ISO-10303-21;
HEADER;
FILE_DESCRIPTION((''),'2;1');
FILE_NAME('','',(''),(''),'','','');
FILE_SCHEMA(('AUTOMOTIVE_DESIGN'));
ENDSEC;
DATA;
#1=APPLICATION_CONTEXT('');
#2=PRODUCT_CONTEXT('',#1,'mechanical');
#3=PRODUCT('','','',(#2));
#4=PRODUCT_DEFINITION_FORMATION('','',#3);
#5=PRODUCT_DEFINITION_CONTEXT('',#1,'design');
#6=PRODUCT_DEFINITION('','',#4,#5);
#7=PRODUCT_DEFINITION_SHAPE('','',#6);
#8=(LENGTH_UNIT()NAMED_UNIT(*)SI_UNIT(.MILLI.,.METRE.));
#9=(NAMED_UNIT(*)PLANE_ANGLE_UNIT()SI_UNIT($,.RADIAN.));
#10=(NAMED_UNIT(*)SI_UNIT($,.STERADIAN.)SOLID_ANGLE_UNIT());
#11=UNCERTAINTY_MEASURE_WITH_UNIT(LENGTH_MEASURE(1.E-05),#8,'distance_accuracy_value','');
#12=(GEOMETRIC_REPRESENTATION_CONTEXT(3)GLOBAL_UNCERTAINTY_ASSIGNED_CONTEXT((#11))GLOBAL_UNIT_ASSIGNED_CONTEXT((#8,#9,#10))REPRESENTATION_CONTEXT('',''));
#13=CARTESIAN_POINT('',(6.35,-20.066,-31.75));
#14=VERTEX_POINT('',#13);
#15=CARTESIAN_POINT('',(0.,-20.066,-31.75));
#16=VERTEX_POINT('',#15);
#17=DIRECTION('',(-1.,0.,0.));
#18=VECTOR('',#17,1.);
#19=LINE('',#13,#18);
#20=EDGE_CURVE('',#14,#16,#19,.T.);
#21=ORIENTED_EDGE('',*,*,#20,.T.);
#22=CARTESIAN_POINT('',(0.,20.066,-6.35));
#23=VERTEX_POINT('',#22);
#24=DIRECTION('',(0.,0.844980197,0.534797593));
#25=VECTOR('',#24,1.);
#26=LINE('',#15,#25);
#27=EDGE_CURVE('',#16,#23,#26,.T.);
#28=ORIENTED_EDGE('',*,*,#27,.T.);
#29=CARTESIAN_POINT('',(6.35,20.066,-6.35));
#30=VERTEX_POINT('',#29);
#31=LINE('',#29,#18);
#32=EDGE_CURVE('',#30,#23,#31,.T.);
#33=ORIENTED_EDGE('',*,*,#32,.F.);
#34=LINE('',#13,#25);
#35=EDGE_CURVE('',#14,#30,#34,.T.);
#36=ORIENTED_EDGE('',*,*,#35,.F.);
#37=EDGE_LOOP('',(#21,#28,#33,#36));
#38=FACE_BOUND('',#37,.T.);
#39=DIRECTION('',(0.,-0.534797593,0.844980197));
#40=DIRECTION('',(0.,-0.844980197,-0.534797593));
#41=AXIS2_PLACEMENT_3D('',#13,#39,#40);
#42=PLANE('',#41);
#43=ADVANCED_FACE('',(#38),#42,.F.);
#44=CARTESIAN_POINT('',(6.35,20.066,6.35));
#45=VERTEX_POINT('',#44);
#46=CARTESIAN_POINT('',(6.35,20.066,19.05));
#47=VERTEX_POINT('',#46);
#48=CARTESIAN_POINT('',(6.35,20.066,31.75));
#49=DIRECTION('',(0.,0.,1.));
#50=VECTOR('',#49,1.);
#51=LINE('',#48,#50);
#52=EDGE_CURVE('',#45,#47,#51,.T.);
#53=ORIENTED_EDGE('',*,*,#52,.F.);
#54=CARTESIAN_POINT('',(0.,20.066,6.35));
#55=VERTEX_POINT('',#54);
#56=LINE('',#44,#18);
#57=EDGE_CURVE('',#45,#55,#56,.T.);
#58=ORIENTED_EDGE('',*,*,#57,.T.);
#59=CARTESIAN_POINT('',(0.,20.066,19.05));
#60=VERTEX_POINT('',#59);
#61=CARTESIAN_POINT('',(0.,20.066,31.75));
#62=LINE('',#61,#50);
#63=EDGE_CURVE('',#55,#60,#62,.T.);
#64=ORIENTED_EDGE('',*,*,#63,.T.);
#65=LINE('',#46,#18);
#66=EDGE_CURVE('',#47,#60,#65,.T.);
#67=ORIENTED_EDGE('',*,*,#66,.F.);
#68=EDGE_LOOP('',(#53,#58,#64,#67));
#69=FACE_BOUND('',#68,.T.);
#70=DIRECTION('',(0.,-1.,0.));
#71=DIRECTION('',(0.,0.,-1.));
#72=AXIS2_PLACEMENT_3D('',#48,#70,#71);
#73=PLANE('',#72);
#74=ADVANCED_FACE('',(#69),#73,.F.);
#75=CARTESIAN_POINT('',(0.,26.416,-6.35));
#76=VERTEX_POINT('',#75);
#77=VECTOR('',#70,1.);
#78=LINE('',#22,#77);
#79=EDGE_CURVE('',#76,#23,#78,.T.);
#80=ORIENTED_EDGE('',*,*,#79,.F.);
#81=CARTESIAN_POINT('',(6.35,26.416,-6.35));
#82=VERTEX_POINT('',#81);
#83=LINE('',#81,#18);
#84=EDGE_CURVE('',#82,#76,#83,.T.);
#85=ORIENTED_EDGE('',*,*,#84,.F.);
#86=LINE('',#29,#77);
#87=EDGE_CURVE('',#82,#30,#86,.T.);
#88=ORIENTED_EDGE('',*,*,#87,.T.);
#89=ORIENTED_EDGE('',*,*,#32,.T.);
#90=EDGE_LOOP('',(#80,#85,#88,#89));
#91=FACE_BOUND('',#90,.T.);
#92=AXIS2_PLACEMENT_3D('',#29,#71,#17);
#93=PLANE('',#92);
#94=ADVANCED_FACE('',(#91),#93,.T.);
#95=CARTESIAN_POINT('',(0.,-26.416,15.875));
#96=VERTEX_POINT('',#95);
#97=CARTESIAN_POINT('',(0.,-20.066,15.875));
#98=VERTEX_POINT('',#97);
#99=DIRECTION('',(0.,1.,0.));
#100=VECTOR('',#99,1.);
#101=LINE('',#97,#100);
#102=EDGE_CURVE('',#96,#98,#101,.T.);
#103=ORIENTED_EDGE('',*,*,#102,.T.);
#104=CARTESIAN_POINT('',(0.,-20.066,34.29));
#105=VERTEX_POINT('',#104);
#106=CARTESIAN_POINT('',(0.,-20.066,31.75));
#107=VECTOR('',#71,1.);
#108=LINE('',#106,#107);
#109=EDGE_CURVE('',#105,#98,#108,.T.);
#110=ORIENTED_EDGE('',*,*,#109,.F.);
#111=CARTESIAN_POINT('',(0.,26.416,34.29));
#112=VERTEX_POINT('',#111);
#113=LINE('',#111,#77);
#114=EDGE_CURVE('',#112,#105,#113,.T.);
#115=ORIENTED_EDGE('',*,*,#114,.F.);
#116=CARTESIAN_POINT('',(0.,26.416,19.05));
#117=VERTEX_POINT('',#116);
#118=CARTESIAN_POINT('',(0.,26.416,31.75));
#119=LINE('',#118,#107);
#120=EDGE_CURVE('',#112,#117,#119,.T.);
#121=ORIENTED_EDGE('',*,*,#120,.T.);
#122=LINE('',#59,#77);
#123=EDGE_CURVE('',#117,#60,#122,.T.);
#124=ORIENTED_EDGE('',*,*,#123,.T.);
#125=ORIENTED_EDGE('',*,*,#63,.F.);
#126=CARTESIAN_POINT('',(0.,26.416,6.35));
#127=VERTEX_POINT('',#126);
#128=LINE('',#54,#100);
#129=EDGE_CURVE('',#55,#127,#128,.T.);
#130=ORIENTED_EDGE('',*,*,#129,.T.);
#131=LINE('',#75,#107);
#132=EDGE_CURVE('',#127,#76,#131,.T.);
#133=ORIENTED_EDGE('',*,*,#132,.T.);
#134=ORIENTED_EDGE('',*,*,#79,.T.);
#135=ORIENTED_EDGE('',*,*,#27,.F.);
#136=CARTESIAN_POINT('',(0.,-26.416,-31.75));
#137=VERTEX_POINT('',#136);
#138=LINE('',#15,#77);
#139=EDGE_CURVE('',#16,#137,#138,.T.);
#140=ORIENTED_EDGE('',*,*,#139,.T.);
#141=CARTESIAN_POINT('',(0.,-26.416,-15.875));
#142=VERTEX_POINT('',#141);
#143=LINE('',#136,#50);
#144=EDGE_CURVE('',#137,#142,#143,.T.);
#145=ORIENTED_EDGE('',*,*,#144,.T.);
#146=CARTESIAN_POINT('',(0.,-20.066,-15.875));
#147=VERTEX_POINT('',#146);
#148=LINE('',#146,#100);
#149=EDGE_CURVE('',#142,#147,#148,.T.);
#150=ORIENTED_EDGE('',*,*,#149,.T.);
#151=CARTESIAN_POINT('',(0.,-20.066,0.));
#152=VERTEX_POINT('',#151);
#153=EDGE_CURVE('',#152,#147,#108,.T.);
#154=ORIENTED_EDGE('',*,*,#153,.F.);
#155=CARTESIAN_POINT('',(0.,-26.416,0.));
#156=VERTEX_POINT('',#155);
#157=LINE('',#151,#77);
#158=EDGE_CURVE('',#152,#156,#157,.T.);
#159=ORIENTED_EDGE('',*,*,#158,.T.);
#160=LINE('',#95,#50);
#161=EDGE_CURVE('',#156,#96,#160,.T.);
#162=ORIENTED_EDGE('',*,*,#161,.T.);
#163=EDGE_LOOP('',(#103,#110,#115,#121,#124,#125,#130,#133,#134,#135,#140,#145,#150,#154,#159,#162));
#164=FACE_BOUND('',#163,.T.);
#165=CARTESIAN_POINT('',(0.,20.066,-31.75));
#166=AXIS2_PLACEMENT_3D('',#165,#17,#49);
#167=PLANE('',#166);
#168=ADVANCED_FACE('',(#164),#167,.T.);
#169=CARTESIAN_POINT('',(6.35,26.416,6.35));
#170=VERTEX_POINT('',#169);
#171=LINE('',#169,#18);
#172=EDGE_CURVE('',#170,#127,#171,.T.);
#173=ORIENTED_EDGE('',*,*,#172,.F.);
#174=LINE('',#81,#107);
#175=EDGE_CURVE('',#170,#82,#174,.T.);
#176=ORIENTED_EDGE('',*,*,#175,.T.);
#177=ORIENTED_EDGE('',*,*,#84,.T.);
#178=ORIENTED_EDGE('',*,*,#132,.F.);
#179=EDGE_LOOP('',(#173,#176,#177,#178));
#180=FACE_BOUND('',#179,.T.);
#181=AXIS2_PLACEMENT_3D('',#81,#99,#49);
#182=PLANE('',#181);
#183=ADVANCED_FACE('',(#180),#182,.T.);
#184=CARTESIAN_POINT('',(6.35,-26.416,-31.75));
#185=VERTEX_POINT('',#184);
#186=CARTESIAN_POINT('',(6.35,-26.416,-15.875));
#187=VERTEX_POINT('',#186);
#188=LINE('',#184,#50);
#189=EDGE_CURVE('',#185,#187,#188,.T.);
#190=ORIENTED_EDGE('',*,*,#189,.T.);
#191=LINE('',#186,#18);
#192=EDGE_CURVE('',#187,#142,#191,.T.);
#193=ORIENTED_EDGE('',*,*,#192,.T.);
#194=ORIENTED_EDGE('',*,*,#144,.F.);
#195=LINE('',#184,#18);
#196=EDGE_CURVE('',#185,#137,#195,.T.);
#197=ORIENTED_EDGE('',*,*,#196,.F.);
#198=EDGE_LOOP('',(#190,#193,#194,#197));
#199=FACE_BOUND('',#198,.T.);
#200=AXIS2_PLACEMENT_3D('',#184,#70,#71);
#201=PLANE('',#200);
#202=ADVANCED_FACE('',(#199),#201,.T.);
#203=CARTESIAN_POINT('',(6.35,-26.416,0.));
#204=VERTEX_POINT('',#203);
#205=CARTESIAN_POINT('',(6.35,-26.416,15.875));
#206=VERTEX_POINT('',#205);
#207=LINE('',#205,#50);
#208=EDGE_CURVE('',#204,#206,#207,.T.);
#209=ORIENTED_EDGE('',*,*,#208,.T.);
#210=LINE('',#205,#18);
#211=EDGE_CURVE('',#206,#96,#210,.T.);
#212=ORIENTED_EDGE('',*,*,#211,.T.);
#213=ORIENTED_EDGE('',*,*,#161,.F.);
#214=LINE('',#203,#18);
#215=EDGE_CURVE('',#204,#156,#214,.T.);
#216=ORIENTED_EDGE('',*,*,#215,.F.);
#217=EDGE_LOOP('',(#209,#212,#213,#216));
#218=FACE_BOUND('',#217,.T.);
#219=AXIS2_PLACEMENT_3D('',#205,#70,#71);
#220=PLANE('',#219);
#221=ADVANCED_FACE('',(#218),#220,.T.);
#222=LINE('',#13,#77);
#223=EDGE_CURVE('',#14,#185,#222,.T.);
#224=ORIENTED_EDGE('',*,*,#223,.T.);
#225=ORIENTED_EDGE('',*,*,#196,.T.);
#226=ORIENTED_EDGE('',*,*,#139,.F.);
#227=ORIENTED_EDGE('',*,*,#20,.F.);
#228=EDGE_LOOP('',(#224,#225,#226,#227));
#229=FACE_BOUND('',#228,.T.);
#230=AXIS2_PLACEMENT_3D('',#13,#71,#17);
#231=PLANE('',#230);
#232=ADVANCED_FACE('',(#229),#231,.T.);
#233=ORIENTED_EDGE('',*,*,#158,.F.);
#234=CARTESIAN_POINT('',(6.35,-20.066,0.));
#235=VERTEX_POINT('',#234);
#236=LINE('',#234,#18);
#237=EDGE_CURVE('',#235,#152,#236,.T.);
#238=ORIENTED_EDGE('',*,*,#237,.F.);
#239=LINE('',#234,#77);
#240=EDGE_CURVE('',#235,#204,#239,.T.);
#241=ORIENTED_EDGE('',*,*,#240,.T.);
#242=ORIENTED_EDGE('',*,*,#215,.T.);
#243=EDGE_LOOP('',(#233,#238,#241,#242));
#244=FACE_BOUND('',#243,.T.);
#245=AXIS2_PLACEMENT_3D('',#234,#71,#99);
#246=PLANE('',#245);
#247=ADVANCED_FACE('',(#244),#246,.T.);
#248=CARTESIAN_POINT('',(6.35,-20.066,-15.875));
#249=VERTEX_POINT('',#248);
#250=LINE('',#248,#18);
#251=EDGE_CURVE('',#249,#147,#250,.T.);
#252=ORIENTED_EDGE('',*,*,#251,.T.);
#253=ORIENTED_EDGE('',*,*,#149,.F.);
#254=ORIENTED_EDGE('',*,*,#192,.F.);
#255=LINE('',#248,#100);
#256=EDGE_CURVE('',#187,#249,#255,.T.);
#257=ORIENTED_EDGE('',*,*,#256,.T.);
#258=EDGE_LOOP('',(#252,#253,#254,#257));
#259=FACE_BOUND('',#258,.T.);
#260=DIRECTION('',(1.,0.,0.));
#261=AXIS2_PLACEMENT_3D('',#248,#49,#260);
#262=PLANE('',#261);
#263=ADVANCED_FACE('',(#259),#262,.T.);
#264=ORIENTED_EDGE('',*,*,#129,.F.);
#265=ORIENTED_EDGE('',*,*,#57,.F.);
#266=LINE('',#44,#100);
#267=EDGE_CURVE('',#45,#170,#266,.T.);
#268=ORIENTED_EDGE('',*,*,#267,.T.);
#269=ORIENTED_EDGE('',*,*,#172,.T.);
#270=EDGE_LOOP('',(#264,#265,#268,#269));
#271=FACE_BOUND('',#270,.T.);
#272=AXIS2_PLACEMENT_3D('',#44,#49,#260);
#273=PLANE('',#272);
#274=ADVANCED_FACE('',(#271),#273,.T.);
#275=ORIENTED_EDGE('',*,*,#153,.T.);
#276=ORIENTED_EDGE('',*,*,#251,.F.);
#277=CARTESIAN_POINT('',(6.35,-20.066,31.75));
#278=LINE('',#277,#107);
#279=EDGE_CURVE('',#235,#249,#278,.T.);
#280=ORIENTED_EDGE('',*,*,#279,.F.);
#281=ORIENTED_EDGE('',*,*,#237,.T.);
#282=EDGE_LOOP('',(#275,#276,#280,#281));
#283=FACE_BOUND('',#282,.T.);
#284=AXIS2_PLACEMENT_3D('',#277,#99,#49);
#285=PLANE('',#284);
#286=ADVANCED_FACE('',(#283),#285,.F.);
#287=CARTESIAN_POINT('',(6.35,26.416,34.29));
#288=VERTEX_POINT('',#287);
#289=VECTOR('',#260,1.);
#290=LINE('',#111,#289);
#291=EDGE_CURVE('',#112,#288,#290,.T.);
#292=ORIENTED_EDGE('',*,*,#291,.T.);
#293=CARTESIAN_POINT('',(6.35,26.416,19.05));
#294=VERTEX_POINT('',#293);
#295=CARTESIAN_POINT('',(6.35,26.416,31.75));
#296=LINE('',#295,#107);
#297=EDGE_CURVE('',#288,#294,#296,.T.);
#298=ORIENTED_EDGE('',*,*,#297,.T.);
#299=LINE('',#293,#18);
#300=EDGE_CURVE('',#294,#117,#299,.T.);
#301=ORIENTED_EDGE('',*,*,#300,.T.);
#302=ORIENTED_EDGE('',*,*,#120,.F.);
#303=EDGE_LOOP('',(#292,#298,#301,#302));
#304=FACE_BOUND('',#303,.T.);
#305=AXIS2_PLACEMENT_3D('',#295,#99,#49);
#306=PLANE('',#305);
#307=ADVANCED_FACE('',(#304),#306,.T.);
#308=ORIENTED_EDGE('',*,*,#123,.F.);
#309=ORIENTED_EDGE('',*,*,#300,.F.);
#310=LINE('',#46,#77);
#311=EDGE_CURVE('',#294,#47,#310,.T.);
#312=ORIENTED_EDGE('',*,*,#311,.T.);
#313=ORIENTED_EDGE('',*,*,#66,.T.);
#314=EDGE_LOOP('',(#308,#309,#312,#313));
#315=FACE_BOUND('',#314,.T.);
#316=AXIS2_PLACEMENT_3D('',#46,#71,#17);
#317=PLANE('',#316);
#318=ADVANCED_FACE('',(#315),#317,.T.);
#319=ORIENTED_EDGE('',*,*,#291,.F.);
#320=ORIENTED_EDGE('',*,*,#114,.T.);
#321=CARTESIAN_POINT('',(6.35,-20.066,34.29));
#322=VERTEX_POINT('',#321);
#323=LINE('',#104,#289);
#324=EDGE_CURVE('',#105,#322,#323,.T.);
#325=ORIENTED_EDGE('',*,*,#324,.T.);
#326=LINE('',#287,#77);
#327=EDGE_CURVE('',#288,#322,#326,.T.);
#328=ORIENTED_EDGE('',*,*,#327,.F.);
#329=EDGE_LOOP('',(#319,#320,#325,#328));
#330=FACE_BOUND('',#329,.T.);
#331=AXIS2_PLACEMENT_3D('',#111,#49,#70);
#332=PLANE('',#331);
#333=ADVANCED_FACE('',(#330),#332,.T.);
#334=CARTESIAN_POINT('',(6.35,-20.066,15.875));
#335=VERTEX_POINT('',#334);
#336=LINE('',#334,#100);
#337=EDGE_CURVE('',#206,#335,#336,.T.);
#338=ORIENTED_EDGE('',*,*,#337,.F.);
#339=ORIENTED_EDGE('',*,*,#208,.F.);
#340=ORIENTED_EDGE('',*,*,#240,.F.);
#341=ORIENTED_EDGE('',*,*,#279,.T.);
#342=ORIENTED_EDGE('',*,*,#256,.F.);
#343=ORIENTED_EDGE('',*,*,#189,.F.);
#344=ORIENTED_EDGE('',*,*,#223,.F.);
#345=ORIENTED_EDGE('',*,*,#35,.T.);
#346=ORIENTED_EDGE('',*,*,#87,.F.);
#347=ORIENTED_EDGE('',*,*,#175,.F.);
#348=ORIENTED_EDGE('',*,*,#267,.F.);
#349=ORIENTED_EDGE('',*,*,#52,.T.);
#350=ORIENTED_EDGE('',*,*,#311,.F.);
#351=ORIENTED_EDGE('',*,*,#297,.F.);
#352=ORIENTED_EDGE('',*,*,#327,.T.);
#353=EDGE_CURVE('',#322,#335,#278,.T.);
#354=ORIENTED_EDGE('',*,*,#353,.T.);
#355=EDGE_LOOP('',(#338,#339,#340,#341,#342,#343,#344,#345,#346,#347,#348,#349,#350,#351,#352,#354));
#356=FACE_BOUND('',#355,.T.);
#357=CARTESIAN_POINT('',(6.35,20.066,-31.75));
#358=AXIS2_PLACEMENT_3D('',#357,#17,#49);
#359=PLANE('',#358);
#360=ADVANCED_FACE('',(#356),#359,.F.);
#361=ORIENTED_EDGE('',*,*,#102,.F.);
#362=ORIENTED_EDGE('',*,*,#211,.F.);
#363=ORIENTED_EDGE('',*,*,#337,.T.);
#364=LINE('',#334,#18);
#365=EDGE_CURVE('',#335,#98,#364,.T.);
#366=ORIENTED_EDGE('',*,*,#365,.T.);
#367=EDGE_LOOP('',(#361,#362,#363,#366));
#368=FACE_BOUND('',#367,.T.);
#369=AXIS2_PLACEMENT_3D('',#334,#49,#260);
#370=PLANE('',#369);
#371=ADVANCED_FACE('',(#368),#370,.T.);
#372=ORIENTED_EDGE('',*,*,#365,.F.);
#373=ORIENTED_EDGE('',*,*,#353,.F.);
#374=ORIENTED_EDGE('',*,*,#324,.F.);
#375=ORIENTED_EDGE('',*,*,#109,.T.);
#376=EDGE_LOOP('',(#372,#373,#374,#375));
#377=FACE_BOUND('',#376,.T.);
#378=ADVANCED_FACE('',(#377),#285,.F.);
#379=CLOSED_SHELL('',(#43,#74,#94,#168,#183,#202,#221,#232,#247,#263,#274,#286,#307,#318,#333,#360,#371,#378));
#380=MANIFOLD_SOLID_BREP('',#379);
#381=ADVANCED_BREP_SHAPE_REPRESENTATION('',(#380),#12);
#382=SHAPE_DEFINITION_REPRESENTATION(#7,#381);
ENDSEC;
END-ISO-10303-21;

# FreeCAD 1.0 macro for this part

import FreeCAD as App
import Part
import Sketcher
Q = App.Units.Quantity

doc = App.newDocument("Part")
body = doc.addObject("PartDesign::Body", "Body")

# Sketch on YZ plane
sketch1 = body.newObject("Sketcher::SketchObject", "Sketch")
sketch1.AttachmentSupport = (doc.getObject("YZ_Plane"), [""])
sketch1.MapMode = "FlatFace"
sketch1.addGeometry([
    Part.LineSegment(App.Vector(20, 32, 0), App.Vector(-20, 32, 0)),
    Part.LineSegment(App.Vector(-20, 32, 0), App.Vector(-20, -32, 0)),
    Part.LineSegment(App.Vector(-20, -32, 0), App.Vector(20, -32, 0)),
    Part.LineSegment(App.Vector(20, -32, 0), App.Vector(20, 32, 0)),
], False)
sketch1.addConstraint([
    Sketcher.Constraint("Coincident", 0, 2, 1, 1),
    Sketcher.Constraint("Coincident", 1, 2, 2, 1),
    Sketcher.Constraint("Coincident", 2, 2, 3, 1),
    Sketcher.Constraint("Coincident", 3, 2, 0, 1),
    Sketcher.Constraint("Horizontal", 0),
    Sketcher.Constraint("Vertical", 1),
    Sketcher.Constraint("Horizontal", 2),
    Sketcher.Constraint("Vertical", 3),
    Sketcher.Constraint("Symmetric", 0, 2, 2, 2, -1, 1),
    Sketcher.Constraint("DistanceY", 1, 2, 1, 1, Q("2.5 in")),
    Sketcher.Constraint("DistanceX", 0, 2, 0, 1, Q("1.58 in")),
])
pad1 = body.newObject("PartDesign::Pad", "Pad")
pad1.Profile = sketch1
pad1.Length = Q("0.25 in")

# Sketch on YZ plane
sketch2 = body.newObject("Sketcher::SketchObject", "Sketch001")
sketch2.AttachmentSupport = (doc.getObject("YZ_Plane"), [""])
sketch2.MapMode = "FlatFace"
sketch2.addGeometry([
    Part.LineSegment(App.Vector(20, -32, 0), App.Vector(-20, -32, 0)),
    Part.LineSegment(App.Vector(-20, -32, 0), App.Vector(20, -6, 0)),
    Part.LineSegment(App.Vector(20, -6, 0), App.Vector(20, -32, 0)),
], False)
sketch2.addConstraint([
    Sketcher.Constraint("Coincident", 0, 2, 1, 1),
    Sketcher.Constraint("Coincident", 1, 2, 2, 1),
    Sketcher.Constraint("Coincident", 2, 2, 0, 1),
    Sketcher.Constraint("Horizontal", 0),
    Sketcher.Constraint("Vertical", 2),
    Sketcher.Constraint("DistanceY", 2, 2, 2, 1, Q("1 in")),
    Sketcher.Constraint("DistanceX", 0, 2, 0, 1, Q("1.58 in")),
    Sketcher.Constraint("DistanceX", 0, 2, -1, 1, Q("0.79 in")),
    Sketcher.Constraint("DistanceY", 0, 2, -1, 1, Q("1.25 in")),
])
pocket1 = body.newObject("PartDesign::Pocket", "Pocket")
pocket1.Profile = sketch2
pocket1.Type = "ThroughAll"
pocket1.Reversed = True

# Sketch on YZ plane
sketch3 = body.newObject("Sketcher::SketchObject", "Sketch002")
sketch3.AttachmentSupport = (doc.getObject("YZ_Plane"), [""])
sketch3.MapMode = "FlatFace"
sketch3.addGeometry([
    Part.LineSegment(App.Vector(26, 19, 0), App.Vector(20, 19, 0)),  # 0
    Part.LineSegment(App.Vector(20, 19, 0), App.Vector(20, 32, 0)),  # 1
    Part.LineSegment(App.Vector(20, 32, 0), App.Vector(26, 32, 0)),  # 2
    Part.LineSegment(App.Vector(26, 32, 0), App.Vector(26, 19, 0)),  # 3
    Part.LineSegment(App.Vector(26, -6, 0), App.Vector(20, -6, 0)),  # 4
    Part.LineSegment(App.Vector(20, -6, 0), App.Vector(20, 6, 0)),  # 5
    Part.LineSegment(App.Vector(20, 6, 0), App.Vector(26, 6, 0)),  # 6
    Part.LineSegment(App.Vector(26, 6, 0), App.Vector(26, -6, 0)),  # 7
    Part.LineSegment(App.Vector(-20, 0, 0), App.Vector(-26, 0, 0)),  # 8
    Part.LineSegment(App.Vector(-26, 0, 0), App.Vector(-26, 16, 0)),  # 9
    Part.LineSegment(App.Vector(-26, 16, 0), App.Vector(-20, 16, 0)),  # 10
    Part.LineSegment(App.Vector(-20, 16, 0), App.Vector(-20, 0, 0)),  # 11
    Part.LineSegment(App.Vector(-20, -32, 0), App.Vector(-26, -32, 0)),  # 12
    Part.LineSegment(App.Vector(-26, -32, 0), App.Vector(-26, -16, 0)),  # 13
    Part.LineSegment(App.Vector(-26, -16, 0), App.Vector(-20, -16, 0)),  # 14
    Part.LineSegment(App.Vector(-20, -16, 0), App.Vector(-20, -32, 0)),  # 15
], False)
sketch3.addConstraint([
    Sketcher.Constraint("Coincident", 0, 2, 1, 1),
    Sketcher.Constraint("Coincident", 1, 2, 2, 1),
    Sketcher.Constraint("Coincident", 2, 2, 3, 1),
    Sketcher.Constraint("Coincident", 3, 2, 0, 1),
    Sketcher.Constraint("Coincident", 4, 2, 5, 1),
    Sketcher.Constraint("Coincident", 5, 2, 6, 1),
    Sketcher.Constraint("Coincident", 6, 2, 7, 1),
    Sketcher.Constraint("Coincident", 7, 2, 4, 1),
    Sketcher.Constraint("Coincident", 8, 2, 9, 1),
    Sketcher.Constraint("Coincident", 9, 2, 10, 1),
    Sketcher.Constraint("Coincident", 10, 2, 11, 1),
    Sketcher.Constraint("Coincident", 11, 2, 8, 1),
    Sketcher.Constraint("Coincident", 12, 2, 13, 1),
    Sketcher.Constraint("Coincident", 13, 2, 14, 1),
    Sketcher.Constraint("Coincident", 14, 2, 15, 1),
    Sketcher.Constraint("Coincident", 15, 2, 12, 1),
    Sketcher.Constraint("Horizontal", 0),
    Sketcher.Constraint("Vertical", 1),
    Sketcher.Constraint("Horizontal", 2),
    Sketcher.Constraint("Vertical", 3),
    Sketcher.Constraint("Horizontal", 4),
    Sketcher.Constraint("Vertical", 5),
    Sketcher.Constraint("Horizontal", 6),
    Sketcher.Constraint("Vertical", 7),
    Sketcher.Constraint("Horizontal", 8),
    Sketcher.Constraint("Vertical", 9),
    Sketcher.Constraint("Horizontal", 10),
    Sketcher.Constraint("Vertical", 11),
    Sketcher.Constraint("Horizontal", 12),
    Sketcher.Constraint("Vertical", 13),
    Sketcher.Constraint("Horizontal", 14),
    Sketcher.Constraint("Vertical", 15),
    Sketcher.Constraint("Symmetric", 2, 2, 12, 2, -1, 1),
    Sketcher.Constraint("Symmetric", 9, 2, 13, 2, -1),
    Sketcher.Constraint("PointOnObject", 8, 2, -1),
    Sketcher.Constraint("Vertical", 1, 2, 4, 2),
    Sketcher.Constraint("Vertical", 3, 2, 6, 2),
    Sketcher.Constraint("Vertical", 11, 2, 14, 2),
    Sketcher.Constraint("Equal", 6, 8),
    Sketcher.Constraint("Equal", 3, 5),
    Sketcher.Constraint("Equal", 11, 13),
    Sketcher.Constraint("DistanceY", 1, 1, 1, 2, Q("0.5 in")),
    Sketcher.Constraint("DistanceY", 4, 2, 0, 2, Q("1 in")),
    Sketcher.Constraint("DistanceY", 12, 2, 4, 2, Q("1 in")),
    Sketcher.Constraint("DistanceX", 0, 2, 0, 1, Q("0.25 in")),
    Sketcher.Constraint("DistanceX", -1, 1, 0, 2, Q("0.79 in")),
])
pad2 = body.newObject("PartDesign::Pad", "Pad001")
pad2.Profile = sketch3
pad2.Type = "UpToLast"

# Sketch on YZ plane
sketch4 = body.newObject("Sketcher::SketchObject", "Sketch003")
sketch4.AttachmentSupport = (doc.getObject("YZ_Plane"), [""])
sketch4.MapMode = "FlatFace"
sketch4.addGeometry([
    Part.LineSegment(App.Vector(21.2, 29.2, 0), App.Vector(-15.9, 29.2, 0)),
    Part.LineSegment(App.Vector(-15.9, 29.2, 0), App.Vector(-15.9, 31.8, 0)),
    Part.LineSegment(App.Vector(-15.9, 31.8, 0), App.Vector(21.2, 31.8, 0)),
    Part.LineSegment(App.Vector(21.2, 31.8, 0), App.Vector(21.2, 29.2, 0)),
], False)
sketch4.addConstraint([
    Sketcher.Constraint("Coincident", 0, 2, 1, 1),
    Sketcher.Constraint("Coincident", 1, 2, 2, 1),
    Sketcher.Constraint("Coincident", 2, 2, 3, 1),
    Sketcher.Constraint("Coincident", 3, 2, 0, 1),
    Sketcher.Constraint("Horizontal", 0),
    Sketcher.Constraint("Vertical", 1),
    Sketcher.Constraint("Horizontal", 2),
    Sketcher.Constraint("Vertical", 3),
    Sketcher.Constraint("DistanceY", 1, 1, 1, 2, Q("0.1 in")),
    Sketcher.Constraint("DistanceX", 0, 2, 0, 1, Q("1.46 in")),
    Sketcher.Constraint("DistanceY", -1, 1, 0, 2, Q("1.15 in")),
    Sketcher.Constraint("DistanceX", 0, 2, -1, 1, Q("0.625 in")),
])
pad3 = body.newObject("PartDesign::Pad", "Pad002")
pad3.Profile = sketch4
pad3.Length = Q("0.25 in")

# Sketch on YZ plane
sketch5 = body.newObject("Sketcher::SketchObject", "Sketch004")
sketch5.AttachmentSupport = (doc.getObject("YZ_Plane"), [""])
sketch5.MapMode = "FlatFace"
sketch5.AttachmentOffset = App.Placement(App.Vector(0, 0, 0.25 * 25.4), App.Rotation())
sketch5.addGeometry([
    Part.LineSegment(App.Vector(26.4, 34.3, 0), App.Vector(-20.1, 34.3, 0)),
    Part.LineSegment(App.Vector(-20.1, 34.3, 0), App.Vector(-20.1, 31.8, 0)),
    Part.LineSegment(App.Vector(-20.1, 31.8, 0), App.Vector(26.4, 31.8, 0)),
    Part.LineSegment(App.Vector(26.4, 31.8, 0), App.Vector(26.4, 34.3, 0)),
], False)
sketch5.addConstraint([
    Sketcher.Constraint("Coincident", 0, 2, 1, 1),
    Sketcher.Constraint("Coincident", 1, 2, 2, 1),
    Sketcher.Constraint("Coincident", 2, 2, 3, 1),
    Sketcher.Constraint("Coincident", 3, 2, 0, 1),
    Sketcher.Constraint("Horizontal", 0),
    Sketcher.Constraint("Vertical", 1),
    Sketcher.Constraint("Horizontal", 2),
    Sketcher.Constraint("Vertical", 3),
    Sketcher.Constraint("DistanceY", 1, 2, 1, 1, Q("0.1 in")),
    Sketcher.Constraint("DistanceX", 0, 2, 0, 1, Q("1.83 in")),
    Sketcher.Constraint("DistanceX", 0, 2, -1, 1, Q("0.79 in")),
    Sketcher.Constraint("DistanceY", -1, 1, 0, 2, Q("1.35 in")),
])
pad4 = body.newObject("PartDesign::Pad", "Pad003")
pad4.Profile = sketch5
pad4.Length = Q("0.25 in")
pad4.Reversed = True

doc.recompute()
